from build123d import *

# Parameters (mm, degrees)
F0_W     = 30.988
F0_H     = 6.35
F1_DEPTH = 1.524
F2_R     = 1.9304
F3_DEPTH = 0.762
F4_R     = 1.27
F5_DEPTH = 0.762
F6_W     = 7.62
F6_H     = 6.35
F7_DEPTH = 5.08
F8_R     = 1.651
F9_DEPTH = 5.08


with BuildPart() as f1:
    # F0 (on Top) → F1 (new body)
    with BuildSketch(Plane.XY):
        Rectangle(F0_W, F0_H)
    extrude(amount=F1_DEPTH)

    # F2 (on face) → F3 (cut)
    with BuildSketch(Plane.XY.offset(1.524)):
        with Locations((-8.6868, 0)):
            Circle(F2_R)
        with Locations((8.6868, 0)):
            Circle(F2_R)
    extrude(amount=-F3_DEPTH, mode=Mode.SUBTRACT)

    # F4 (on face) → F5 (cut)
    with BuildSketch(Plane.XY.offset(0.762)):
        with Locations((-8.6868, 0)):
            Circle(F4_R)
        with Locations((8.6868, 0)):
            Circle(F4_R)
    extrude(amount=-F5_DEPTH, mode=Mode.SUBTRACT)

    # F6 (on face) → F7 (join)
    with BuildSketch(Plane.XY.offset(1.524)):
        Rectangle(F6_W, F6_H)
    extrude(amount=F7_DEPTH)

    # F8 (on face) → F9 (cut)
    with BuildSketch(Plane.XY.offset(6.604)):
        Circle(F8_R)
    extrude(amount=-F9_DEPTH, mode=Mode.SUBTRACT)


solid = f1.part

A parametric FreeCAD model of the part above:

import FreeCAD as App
import Part
import Sketcher
from FreeCAD import Vector
Q = App.Units.Quantity


def add_polygon(sketch, points):
    """Adds a closed chain of lines whose ends are joined by coincident constraints."""
    first, n = sketch.GeometryCount, len(points)
    for a, b in zip(points, points[1:] + points[:1]):
        sketch.addGeometry(Part.LineSegment(App.Vector(*a, 0), App.Vector(*b, 0)), False)
    for i in range(n):
        sketch.addConstraint(Sketcher.Constraint("Coincident", first + i, 2, first + (i + 1) % n, 1))

doc = App.newDocument("Part")
params = doc.addObject("Spreadsheet::Sheet", "Params")
for row, (alias, value) in enumerate([
    ("sketch1_width", "1.22 in"),
    ("sketch1_height", "0.25 in"),
    ("pad1_length", "0.06 in"),
    ("sketch2_diameter", "0.152 in"),
    ("pocket1_length", "0.03 in"),
    ("sketch3_diameter", "0.1 in"),
    ("pocket2_length", "0.03 in"),
    ("sketch4_width", "0.3 in"),
    ("sketch4_height", "0.25 in"),
    ("pad2_length", "0.2 in"),
    ("sketch5_diameter", "0.13 in"),
    ("pocket3_length", "0.2 in"),
], start=1):
    params.set(f"A{row}", alias)
    params.set(f"B{row}", "=" + value)
    params.setAlias(f"B{row}", alias)

body = doc.addObject("PartDesign::Body", "Body")

# Sketch on XY plane
sketch1 = doc.addObject("Sketcher::SketchObject", "Sketch")
body.addObject(sketch1)
sketch1.AttachmentSupport = (doc.XY_Plane, [""])
sketch1.MapMode = "FlatFace"
add_polygon(sketch1, [(-15, 3), (-15, -3), (15, -3), (15, 3)])  # lines 0-3
sketch1.addConstraint([
    Sketcher.Constraint("Vertical", 0),
    Sketcher.Constraint("Horizontal", 1),
    Sketcher.Constraint("Vertical", 2),
    Sketcher.Constraint("Horizontal", 3),
    Sketcher.Constraint("Symmetric", 0, 2, 2, 2, -1, 1),
    Sketcher.Constraint("DistanceX", 1, 1, 1, 2, Q("1.22 in")),
    Sketcher.Constraint("DistanceY", 0, 2, 0, 1, Q("0.25 in")),
])
sketch1.setExpression("Constraints[9]", "Params.sketch1_width")
sketch1.setExpression("Constraints[10]", "Params.sketch1_height")
pad1 = doc.addObject("PartDesign::Pad", "Pad")
body.addObject(pad1)
pad1.Profile = sketch1
pad1.setExpression("Length", "Params.pad1_length")

# Sketch on XY plane
sketch2 = doc.addObject("Sketcher::SketchObject", "Sketch001")
body.addObject(sketch2)
sketch2.AttachmentSupport = (doc.XY_Plane, [""])
sketch2.MapMode = "FlatFace"
sketch2.AttachmentOffset = App.Placement(Vector(0, 0, 0.06 * 25.4), App.Rotation())
sketch2.addGeometry([
    Part.Circle(Vector(-8.7, 0, 0), Vector(0, 0, 1), 1.9),
    Part.Circle(Vector(8.7, 0, 0), Vector(0, 0, 1), 1.9),
], False)
sketch2.addConstraint([
    Sketcher.Constraint("Equal", 0, 1),
    Sketcher.Constraint("Symmetric", 0, 3, 1, 3, -1, 1),
    Sketcher.Constraint("PointOnObject", 0, 3, -1),
    Sketcher.Constraint("Diameter", 0, Q("0.152 in")),
    Sketcher.Constraint("DistanceX", 0, 3, -1, 1, Q("0.342 in")),
])
sketch2.setExpression("Constraints[3]", "Params.sketch2_diameter")
pocket1 = doc.addObject("PartDesign::Pocket", "Pocket")
body.addObject(pocket1)
pocket1.Profile = sketch2
pocket1.setExpression("Length", "Params.pocket1_length")

# Sketch on XY plane
sketch3 = doc.addObject("Sketcher::SketchObject", "Sketch002")
body.addObject(sketch3)
sketch3.AttachmentSupport = (doc.XY_Plane, [""])
sketch3.MapMode = "FlatFace"
sketch3.AttachmentOffset = App.Placement(Vector(0, 0, 0.03 * 25.4), App.Rotation())
sketch3.addGeometry([
    Part.Circle(Vector(-8.7, 0, 0), Vector(0, 0, 1), 1.3),
    Part.Circle(Vector(8.7, 0, 0), Vector(0, 0, 1), 1.3),
], False)
sketch3.addConstraint([
    Sketcher.Constraint("Equal", 0, 1),
    Sketcher.Constraint("Symmetric", 0, 3, 1, 3, -1, 1),
    Sketcher.Constraint("PointOnObject", 0, 3, -1),
    Sketcher.Constraint("Diameter", 0, Q("0.1 in")),
    Sketcher.Constraint("DistanceX", 0, 3, -1, 1, Q("0.342 in")),
])
sketch3.setExpression("Constraints[3]", "Params.sketch3_diameter")
pocket2 = doc.addObject("PartDesign::Pocket", "Pocket001")
body.addObject(pocket2)
pocket2.Profile = sketch3
pocket2.setExpression("Length", "Params.pocket2_length")

# Sketch on XY plane
sketch4 = doc.addObject("Sketcher::SketchObject", "Sketch003")
body.addObject(sketch4)
sketch4.AttachmentSupport = (doc.XY_Plane, [""])
sketch4.MapMode = "FlatFace"
sketch4.AttachmentOffset = App.Placement(Vector(0, 0, 0.06 * 25.4), App.Rotation())
add_polygon(sketch4, [(-4, 3), (-4, -3), (4, -3), (4, 3)])  # lines 0-3
sketch4.addConstraint([
    Sketcher.Constraint("Vertical", 0),
    Sketcher.Constraint("Horizontal", 1),
    Sketcher.Constraint("Vertical", 2),
    Sketcher.Constraint("Horizontal", 3),
    Sketcher.Constraint("Symmetric", 0, 2, 2, 2, -1, 1),
    Sketcher.Constraint("DistanceX", 1, 1, 1, 2, Q("0.3 in")),
    Sketcher.Constraint("DistanceY", 0, 2, 0, 1, Q("0.25 in")),
])
sketch4.setExpression("Constraints[9]", "Params.sketch4_width")
sketch4.setExpression("Constraints[10]", "Params.sketch4_height")
pad2 = doc.addObject("PartDesign::Pad", "Pad001")
body.addObject(pad2)
pad2.Profile = sketch4
pad2.setExpression("Length", "Params.pad2_length")

# Sketch on XY plane
sketch5 = doc.addObject("Sketcher::SketchObject", "Sketch004")
body.addObject(sketch5)
sketch5.AttachmentSupport = (doc.XY_Plane, [""])
sketch5.MapMode = "FlatFace"
sketch5.AttachmentOffset = App.Placement(Vector(0, 0, 0.26 * 25.4), App.Rotation())
sketch5.addGeometry(Part.Circle(Vector(0, 0, 0), Vector(0, 0, 1), 1.7), False)
sketch5.addConstraint([
    Sketcher.Constraint("Coincident", 0, 3, -1, 1),
    Sketcher.Constraint("Diameter", 0, Q("0.13 in")),
])
sketch5.setExpression("Constraints[1]", "Params.sketch5_diameter")
pocket3 = doc.addObject("PartDesign::Pocket", "Pocket002")
body.addObject(pocket3)
pocket3.Profile = sketch5
pocket3.setExpression("Length", "Params.pocket3_length")

doc.recompute()
